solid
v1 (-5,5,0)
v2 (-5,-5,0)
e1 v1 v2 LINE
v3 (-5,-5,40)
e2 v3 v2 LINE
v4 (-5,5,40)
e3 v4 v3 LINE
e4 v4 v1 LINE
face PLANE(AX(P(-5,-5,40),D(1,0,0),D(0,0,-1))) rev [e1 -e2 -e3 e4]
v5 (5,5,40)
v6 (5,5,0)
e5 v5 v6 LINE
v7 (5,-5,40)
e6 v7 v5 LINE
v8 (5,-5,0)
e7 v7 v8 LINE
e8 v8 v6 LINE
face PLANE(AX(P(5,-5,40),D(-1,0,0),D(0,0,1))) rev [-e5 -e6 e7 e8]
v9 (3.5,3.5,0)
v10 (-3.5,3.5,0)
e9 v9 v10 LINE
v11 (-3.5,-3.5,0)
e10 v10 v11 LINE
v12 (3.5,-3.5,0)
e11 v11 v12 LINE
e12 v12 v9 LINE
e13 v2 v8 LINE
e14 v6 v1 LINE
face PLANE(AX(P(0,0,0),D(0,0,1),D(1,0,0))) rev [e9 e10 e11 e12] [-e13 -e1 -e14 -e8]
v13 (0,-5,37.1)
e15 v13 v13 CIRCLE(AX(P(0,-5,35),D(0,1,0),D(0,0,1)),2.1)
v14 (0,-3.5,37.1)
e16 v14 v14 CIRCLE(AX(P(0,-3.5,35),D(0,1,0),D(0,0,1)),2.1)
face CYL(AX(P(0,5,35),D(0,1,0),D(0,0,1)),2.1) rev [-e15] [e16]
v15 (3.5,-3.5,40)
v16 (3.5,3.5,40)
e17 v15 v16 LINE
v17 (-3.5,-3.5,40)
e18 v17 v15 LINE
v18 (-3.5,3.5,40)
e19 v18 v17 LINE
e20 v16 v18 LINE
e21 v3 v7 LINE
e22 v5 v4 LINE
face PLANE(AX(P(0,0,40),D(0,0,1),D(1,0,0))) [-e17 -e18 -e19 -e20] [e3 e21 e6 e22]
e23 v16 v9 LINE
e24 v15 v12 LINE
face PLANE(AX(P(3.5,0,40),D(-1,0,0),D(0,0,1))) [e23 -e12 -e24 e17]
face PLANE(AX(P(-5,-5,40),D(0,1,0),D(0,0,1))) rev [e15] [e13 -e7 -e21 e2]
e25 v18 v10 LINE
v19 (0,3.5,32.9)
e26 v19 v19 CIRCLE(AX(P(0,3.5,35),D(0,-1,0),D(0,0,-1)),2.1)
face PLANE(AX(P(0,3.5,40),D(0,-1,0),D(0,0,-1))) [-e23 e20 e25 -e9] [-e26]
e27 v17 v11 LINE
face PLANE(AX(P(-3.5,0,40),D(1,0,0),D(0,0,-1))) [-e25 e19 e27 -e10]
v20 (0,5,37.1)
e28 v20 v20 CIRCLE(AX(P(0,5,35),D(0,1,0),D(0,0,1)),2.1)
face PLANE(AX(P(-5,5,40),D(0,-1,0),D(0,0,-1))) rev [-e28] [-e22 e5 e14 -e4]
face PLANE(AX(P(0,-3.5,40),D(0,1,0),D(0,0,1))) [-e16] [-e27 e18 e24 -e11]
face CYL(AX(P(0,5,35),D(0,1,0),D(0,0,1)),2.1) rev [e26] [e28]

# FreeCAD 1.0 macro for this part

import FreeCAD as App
import Part
import Sketcher
Q = App.Units.Quantity


def add_polygon(sketch, points):
    """Adds a closed chain of lines whose ends are joined by coincident constraints."""
    first, n = sketch.GeometryCount, len(points)
    for a, b in zip(points, points[1:] + points[:1]):
        sketch.addGeometry(Part.LineSegment(App.Vector(*a, 0), App.Vector(*b, 0)), False)
    for i in range(n):
        sketch.addConstraint(Sketcher.Constraint("Coincident", first + i, 2, first + (i + 1) % n, 1))

doc = App.newDocument("Part")
params = doc.addObject("Spreadsheet::Sheet", "Params")
for row, (alias, value) in enumerate([
    ("sketch1_width", "10 mm"),
    ("sketch1_width2", "7 mm"),
    ("pad1_length", "40 mm"),
    ("sketch2_diameter", "4.2 mm"),
    ("hole_diameter", "4.2 mm"),
], start=1):
    params.set(f"A{row}", alias)
    params.set(f"B{row}", "=" + value)
    params.setAlias(f"B{row}", alias)

body = doc.addObject("PartDesign::Body", "Body")

# Sketch on XY plane
sketch1 = doc.addObject("Sketcher::SketchObject", "Sketch")
body.addObject(sketch1)
sketch1.AttachmentSupport = (doc.XY_Plane, [""])
sketch1.MapMode = "FlatFace"
add_polygon(sketch1, [(-5, 5), (-5, -5), (5, -5), (5, 5)])  # lines 0-3
add_polygon(sketch1, [(4, -4), (-4, -4), (-4, 4), (4, 4)])  # lines 4-7
sketch1.addConstraint(Sketcher.Constraint("Vertical", 0))
sketch1.addConstraint(Sketcher.Constraint("Horizontal", 1))
sketch1.addConstraint(Sketcher.Constraint("Vertical", 2))
sketch1.addConstraint(Sketcher.Constraint("Horizontal", 3))
sketch1.addConstraint(Sketcher.Constraint("Horizontal", 4))
sketch1.addConstraint(Sketcher.Constraint("Vertical", 5))
sketch1.addConstraint(Sketcher.Constraint("Horizontal", 6))
sketch1.addConstraint(Sketcher.Constraint("Vertical", 7))
sketch1.addConstraint(Sketcher.Constraint("Symmetric", 0, 2, 2, 2, -1, 1))
sketch1.addConstraint(Sketcher.Constraint("Symmetric", 4, 2, 6, 2, -1, 1))
sketch1.addConstraint(Sketcher.Constraint("Equal", 3, 0))
sketch1.addConstraint(Sketcher.Constraint("Equal", 6, 5))
sketch1.addConstraint(Sketcher.Constraint("DistanceX", 1, 1, 1, 2, Q("10 mm")))
sketch1.addConstraint(Sketcher.Constraint("DistanceX", 4, 2, 4, 1, Q("7 mm")))
sketch1.setExpression("Constraints[20]", "Params.sketch1_width")
sketch1.setExpression("Constraints[21]", "Params.sketch1_width2")
pad1 = doc.addObject("PartDesign::Pad", "Pad")
body.addObject(pad1)
pad1.Profile = sketch1
pad1.setExpression("Length", "Params.pad1_length")

# Sketch on XZ plane
sketch2 = doc.addObject("Sketcher::SketchObject", "Sketch001")
body.addObject(sketch2)
sketch2.AttachmentSupport = (doc.XZ_Plane, [""])
sketch2.MapMode = "FlatFace"
sketch2.AttachmentOffset = App.Placement(App.Vector(0, 0, -5), App.Rotation())
sketch2.addGeometry(Part.Circle(App.Vector(0, 35, 0), App.Vector(0, 0, 1), 2.1), False)
sketch2.addConstraint(Sketcher.Constraint("PointOnObject", 0, 3, -2))
sketch2.addConstraint(Sketcher.Constraint("Diameter", 0, Q("4.2 mm")))
sketch2.addConstraint(Sketcher.Constraint("DistanceY", -1, 1, 0, 3, Q("35 mm")))
sketch2.setExpression("Constraints[1]", "Params.sketch2_diameter")
doc.recompute()
hole = doc.addObject("PartDesign::Hole", "Hole")
body.addObject(hole)
hole.Profile = sketch2
hole.ThreadType = "None"
hole.setExpression("Diameter", "Params.hole_diameter")
hole.DepthType = "ThroughAll"
hole.Reversed = True

doc.recompute()
